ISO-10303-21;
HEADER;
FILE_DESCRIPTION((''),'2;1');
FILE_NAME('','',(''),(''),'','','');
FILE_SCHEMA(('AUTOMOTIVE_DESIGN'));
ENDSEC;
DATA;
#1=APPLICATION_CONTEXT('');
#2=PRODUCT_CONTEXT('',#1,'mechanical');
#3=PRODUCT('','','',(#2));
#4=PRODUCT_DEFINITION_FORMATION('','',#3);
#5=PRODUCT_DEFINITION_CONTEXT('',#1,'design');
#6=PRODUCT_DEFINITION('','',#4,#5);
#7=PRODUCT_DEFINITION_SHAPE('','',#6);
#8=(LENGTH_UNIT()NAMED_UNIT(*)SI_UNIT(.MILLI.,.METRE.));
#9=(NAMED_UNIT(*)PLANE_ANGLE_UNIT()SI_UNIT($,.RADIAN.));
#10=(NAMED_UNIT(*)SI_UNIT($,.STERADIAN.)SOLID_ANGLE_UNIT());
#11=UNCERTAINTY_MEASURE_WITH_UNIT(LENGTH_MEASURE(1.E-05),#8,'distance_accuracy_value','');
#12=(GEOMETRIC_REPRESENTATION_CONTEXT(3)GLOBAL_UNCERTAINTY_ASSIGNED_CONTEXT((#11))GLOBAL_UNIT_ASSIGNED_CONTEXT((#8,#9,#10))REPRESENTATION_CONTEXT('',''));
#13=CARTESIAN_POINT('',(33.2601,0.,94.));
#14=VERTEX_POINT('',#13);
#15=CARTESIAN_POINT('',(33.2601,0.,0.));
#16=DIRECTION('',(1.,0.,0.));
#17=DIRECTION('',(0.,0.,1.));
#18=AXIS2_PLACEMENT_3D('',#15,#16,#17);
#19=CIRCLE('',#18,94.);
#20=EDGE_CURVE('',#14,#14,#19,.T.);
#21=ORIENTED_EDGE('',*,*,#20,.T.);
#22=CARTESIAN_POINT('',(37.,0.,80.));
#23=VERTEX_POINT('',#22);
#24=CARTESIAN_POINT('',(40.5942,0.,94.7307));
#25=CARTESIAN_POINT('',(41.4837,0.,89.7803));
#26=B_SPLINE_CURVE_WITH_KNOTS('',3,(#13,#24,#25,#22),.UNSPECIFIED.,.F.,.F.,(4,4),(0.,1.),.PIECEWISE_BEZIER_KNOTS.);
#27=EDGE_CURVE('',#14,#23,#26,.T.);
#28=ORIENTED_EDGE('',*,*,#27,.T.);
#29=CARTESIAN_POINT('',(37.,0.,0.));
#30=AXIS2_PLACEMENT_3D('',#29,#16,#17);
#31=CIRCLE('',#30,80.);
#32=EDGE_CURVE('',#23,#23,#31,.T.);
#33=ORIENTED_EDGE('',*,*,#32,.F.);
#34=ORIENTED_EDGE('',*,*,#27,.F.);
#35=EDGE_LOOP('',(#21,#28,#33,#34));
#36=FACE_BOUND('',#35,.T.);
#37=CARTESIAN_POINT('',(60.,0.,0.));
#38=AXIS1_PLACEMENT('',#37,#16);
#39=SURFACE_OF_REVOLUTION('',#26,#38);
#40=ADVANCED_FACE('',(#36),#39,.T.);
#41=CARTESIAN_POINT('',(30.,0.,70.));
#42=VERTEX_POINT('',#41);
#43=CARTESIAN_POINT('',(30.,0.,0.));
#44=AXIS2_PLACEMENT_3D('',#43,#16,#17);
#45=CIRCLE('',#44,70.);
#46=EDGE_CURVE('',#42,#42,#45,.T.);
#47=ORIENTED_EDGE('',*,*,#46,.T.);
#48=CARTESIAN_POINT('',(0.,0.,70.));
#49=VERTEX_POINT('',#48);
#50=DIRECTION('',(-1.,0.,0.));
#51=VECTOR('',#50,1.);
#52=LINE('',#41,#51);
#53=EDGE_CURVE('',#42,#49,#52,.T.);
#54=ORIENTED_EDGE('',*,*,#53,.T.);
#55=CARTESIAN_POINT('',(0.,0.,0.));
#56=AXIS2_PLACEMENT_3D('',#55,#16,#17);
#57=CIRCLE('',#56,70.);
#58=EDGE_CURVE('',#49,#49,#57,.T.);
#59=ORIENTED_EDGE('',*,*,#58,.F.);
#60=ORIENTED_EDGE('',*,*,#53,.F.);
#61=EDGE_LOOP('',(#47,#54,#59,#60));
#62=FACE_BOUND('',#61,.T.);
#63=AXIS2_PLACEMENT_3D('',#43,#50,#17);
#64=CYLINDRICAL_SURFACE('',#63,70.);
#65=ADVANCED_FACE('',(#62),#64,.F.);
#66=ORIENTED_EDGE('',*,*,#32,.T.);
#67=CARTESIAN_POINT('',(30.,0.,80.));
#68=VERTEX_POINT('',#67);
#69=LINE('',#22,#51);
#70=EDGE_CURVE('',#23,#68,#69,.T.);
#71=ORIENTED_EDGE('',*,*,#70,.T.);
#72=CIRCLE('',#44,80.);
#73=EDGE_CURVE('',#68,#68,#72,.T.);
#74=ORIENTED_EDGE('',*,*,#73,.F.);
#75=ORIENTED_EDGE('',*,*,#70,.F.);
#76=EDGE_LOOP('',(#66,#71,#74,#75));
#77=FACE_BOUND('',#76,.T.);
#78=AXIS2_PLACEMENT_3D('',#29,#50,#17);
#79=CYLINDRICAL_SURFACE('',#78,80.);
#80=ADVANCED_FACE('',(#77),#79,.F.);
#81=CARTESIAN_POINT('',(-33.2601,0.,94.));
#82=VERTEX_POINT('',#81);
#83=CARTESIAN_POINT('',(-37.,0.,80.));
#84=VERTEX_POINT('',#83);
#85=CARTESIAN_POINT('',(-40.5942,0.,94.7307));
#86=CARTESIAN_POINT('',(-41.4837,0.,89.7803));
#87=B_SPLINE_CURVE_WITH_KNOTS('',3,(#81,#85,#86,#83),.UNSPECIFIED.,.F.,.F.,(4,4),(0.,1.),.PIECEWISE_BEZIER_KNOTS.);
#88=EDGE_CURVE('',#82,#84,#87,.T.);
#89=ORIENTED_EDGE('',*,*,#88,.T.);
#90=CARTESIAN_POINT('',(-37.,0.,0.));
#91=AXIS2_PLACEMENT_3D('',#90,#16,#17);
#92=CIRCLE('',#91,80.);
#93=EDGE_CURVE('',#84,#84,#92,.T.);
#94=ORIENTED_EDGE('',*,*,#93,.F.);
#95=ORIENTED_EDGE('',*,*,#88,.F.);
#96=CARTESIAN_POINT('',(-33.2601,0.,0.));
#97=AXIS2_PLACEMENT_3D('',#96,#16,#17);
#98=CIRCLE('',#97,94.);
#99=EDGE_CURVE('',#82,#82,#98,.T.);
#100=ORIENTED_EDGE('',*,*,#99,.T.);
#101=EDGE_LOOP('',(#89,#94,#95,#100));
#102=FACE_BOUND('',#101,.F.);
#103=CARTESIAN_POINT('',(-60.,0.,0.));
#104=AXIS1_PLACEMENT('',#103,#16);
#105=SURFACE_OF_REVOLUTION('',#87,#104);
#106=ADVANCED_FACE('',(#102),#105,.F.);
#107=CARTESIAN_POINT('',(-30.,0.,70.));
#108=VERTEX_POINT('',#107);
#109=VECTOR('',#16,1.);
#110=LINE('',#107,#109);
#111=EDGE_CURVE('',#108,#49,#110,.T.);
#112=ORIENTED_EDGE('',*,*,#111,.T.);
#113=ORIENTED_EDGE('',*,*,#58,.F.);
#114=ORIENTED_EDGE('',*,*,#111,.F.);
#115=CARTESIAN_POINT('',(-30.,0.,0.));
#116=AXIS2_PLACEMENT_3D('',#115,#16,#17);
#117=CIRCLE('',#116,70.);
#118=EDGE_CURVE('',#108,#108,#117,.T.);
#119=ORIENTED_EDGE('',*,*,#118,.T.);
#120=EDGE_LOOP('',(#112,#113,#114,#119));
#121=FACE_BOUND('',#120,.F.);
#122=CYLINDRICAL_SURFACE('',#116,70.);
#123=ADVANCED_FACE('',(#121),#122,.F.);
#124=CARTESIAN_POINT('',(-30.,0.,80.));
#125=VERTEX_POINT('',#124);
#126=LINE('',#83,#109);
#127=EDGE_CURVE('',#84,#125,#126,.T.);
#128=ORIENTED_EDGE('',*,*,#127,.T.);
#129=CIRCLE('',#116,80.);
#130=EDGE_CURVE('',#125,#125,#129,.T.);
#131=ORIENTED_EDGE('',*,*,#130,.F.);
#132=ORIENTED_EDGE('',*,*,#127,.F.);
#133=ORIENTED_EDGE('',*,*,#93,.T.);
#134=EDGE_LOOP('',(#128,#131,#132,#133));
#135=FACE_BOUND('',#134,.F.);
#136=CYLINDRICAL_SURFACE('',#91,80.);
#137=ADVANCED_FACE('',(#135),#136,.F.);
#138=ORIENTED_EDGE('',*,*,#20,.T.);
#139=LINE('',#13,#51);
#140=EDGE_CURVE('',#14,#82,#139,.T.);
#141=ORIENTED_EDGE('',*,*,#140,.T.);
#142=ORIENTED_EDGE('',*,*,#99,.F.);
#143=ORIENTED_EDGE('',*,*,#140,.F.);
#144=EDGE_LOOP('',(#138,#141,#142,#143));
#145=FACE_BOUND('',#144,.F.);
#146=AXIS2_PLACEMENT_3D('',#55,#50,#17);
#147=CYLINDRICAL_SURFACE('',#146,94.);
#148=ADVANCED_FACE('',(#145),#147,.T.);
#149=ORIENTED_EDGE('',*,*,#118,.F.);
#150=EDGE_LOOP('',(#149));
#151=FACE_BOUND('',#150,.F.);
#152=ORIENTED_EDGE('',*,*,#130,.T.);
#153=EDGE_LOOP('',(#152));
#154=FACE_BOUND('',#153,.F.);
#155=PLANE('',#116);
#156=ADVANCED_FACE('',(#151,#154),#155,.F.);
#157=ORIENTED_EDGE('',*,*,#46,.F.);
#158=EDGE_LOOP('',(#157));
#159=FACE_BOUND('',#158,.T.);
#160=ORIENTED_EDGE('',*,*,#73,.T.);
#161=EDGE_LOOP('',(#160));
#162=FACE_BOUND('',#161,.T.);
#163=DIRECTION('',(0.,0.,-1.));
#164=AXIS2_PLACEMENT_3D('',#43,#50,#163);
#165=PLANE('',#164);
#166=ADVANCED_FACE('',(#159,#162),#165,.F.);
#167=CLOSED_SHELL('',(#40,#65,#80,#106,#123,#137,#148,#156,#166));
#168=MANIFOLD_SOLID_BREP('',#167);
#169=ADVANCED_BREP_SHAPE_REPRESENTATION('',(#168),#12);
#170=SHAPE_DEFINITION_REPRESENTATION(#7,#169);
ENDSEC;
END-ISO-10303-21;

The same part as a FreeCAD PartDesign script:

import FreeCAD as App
import Part
import Sketcher

V = App.Vector

doc = App.newDocument("Part")
body = doc.addObject("PartDesign::Body", "Body")

# Sketch on XZ plane
sketch1 = body.newObject("Sketcher::SketchObject", "Sketch")
sketch1.AttachmentSupport = (doc.getObject("XZ_Plane"), [""])
sketch1.MapMode = "FlatFace"
sketch1.addGeometry([
    Part.LineSegment(V(0, 70, 0), V(0, 94, 0)),  # 0
    Part.LineSegment(V(0, 94, 0), V(-33.2601, 94, 0)),  # 1
    Part.BSplineCurve([V(-33.2601, 94, 0), V(-40.5942, 94.7307, 0), V(-41.4837, 89.7803, 0), V(-37, 80, 0)], [4, 4], [0, 1], False, 3, [1, 1, 1, 1], False),  # 2
    Part.LineSegment(V(-37, 80, 0), V(-30, 80, 0)),  # 3
    Part.LineSegment(V(-30, 80, 0), V(-30, 70, 0)),  # 4
    Part.LineSegment(V(-30, 70, 0), V(0, 70, 0)),  # 5
], False)
sketch1.addConstraint([
    Sketcher.Constraint("Block", 2),
    Sketcher.Constraint("Coincident", 0, 2, 1, 1),
    Sketcher.Constraint("Coincident", 1, 2, 2, 1),
    Sketcher.Constraint("Coincident", 2, 2, 3, 1),
    Sketcher.Constraint("Coincident", 3, 2, 4, 1),
    Sketcher.Constraint("Coincident", 4, 2, 5, 1),
    Sketcher.Constraint("Coincident", 5, 2, 0, 1),
    Sketcher.Constraint("Vertical", 0),
    Sketcher.Constraint("Horizontal", 1),
    Sketcher.Constraint("Horizontal", 3),
    Sketcher.Constraint("Vertical", 4),
    Sketcher.Constraint("Horizontal", 5),
    Sketcher.Constraint("PointOnObject", 0, 2, -2),
    Sketcher.Constraint("DistanceX", 5, 1, 5, 2, 30.0),
    Sketcher.Constraint("DistanceY", 0, 1, 0, 2, 24.0),
])
revolution = body.newObject("PartDesign::Revolution", "Revolution")
revolution.Profile = sketch1
revolution.ReferenceAxis = (sketch1, ["H_Axis"])
revolution.Angle = 360
doc.recompute()

mirrored = body.newObject("PartDesign::Mirrored", "Mirrored")
mirrored.Originals = [revolution]
mirrored.MirrorPlane = (doc.getObject("YZ_Plane"), [""])
body.Tip = mirrored

doc.recompute()
